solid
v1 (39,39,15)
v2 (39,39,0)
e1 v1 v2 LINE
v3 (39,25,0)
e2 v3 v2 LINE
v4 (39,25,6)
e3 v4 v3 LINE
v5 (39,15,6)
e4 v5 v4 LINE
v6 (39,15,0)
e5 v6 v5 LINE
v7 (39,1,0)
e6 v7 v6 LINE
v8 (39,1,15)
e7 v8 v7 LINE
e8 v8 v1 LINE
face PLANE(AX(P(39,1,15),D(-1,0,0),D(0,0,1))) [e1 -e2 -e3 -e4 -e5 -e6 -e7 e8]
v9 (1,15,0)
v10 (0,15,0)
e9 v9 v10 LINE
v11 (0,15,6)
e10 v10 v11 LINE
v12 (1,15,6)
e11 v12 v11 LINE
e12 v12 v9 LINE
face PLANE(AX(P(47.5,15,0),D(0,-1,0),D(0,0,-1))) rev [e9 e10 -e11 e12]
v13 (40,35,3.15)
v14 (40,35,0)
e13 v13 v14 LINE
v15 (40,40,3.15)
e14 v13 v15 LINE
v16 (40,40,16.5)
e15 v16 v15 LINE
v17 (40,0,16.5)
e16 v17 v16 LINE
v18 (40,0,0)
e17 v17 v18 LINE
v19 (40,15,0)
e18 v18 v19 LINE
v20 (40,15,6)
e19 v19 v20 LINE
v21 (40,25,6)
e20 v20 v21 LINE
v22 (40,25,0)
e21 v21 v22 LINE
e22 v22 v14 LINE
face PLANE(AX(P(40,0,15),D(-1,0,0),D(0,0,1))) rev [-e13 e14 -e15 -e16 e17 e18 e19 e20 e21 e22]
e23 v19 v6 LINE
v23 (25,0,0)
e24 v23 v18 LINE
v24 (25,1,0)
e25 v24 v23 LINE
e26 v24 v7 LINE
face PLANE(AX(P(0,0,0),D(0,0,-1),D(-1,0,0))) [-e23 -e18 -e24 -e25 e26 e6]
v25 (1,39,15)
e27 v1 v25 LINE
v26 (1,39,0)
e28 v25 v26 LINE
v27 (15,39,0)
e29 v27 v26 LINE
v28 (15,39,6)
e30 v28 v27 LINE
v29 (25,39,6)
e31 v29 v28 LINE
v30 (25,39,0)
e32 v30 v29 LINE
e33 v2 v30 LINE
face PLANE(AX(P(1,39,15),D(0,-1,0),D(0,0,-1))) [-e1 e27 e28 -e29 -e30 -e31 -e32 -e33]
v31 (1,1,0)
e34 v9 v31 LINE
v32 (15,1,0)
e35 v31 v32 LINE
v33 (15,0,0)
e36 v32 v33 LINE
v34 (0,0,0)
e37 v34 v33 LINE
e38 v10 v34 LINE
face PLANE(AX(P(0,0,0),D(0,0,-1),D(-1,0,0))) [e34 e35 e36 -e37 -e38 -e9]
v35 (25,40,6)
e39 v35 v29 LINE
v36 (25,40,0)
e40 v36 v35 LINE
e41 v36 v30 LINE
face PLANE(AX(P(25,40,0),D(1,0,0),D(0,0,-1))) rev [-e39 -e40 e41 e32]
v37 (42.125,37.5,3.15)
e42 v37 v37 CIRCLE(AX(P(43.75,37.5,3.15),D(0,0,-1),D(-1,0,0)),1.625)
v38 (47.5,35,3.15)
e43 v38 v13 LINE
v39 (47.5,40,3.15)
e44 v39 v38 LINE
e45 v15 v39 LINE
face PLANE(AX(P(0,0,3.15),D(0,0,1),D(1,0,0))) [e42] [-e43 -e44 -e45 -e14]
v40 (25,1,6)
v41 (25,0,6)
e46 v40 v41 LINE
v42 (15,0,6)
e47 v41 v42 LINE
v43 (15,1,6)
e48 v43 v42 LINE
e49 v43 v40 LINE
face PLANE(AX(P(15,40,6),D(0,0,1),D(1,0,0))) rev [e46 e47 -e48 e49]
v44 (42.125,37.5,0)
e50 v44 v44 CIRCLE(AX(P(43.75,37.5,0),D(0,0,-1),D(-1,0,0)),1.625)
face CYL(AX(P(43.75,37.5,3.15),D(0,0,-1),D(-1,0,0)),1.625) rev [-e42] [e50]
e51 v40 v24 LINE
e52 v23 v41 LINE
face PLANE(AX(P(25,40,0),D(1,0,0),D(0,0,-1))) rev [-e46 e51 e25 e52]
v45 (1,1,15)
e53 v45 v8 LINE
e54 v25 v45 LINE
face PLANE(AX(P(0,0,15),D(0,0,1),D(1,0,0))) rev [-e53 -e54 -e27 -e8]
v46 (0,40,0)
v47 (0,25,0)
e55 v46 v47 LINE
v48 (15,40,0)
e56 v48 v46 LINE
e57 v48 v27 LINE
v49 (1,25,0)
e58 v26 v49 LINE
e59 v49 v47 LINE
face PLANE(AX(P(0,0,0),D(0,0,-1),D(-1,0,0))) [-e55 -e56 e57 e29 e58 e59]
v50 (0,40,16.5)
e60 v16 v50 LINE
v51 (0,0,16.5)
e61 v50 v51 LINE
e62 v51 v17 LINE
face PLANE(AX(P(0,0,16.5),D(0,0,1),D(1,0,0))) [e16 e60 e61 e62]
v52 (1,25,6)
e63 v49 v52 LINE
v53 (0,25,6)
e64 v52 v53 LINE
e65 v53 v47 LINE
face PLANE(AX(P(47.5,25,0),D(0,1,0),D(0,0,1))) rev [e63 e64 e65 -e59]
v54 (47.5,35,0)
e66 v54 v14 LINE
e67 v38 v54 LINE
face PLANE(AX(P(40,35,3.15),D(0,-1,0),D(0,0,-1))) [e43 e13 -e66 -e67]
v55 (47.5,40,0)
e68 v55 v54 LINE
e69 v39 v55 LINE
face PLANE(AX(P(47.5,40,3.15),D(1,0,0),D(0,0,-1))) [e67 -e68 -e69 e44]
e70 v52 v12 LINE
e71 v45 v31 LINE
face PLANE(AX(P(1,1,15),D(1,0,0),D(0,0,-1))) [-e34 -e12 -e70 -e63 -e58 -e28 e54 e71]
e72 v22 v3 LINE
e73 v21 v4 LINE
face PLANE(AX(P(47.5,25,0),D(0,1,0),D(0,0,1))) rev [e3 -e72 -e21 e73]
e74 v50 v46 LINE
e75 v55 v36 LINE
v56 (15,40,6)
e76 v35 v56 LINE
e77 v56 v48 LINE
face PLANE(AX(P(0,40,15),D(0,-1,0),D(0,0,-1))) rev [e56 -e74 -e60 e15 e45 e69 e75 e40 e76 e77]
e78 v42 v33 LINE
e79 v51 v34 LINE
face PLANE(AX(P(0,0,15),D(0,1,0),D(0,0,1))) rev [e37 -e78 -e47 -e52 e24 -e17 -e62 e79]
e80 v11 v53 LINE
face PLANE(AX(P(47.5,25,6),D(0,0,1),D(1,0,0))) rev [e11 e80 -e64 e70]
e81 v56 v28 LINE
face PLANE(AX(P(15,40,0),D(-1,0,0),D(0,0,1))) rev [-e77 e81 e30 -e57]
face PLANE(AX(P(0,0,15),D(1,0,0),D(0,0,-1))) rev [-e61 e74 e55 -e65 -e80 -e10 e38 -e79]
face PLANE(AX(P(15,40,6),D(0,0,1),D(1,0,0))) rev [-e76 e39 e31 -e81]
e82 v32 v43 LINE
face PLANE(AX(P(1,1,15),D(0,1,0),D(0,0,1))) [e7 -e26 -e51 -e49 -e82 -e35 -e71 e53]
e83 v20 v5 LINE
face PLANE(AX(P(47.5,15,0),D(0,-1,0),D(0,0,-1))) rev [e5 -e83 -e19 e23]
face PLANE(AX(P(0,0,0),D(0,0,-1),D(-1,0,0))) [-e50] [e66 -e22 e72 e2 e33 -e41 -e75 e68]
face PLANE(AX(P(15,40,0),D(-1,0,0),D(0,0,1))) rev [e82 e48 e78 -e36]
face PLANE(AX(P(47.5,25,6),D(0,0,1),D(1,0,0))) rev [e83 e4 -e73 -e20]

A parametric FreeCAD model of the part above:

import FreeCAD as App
import Part
import Sketcher
from FreeCAD import Vector


def add_polygon(sketch, points):
    """Adds a closed chain of lines whose ends are joined by coincident constraints."""
    first, n = sketch.GeometryCount, len(points)
    for a, b in zip(points, points[1:] + points[:1]):
        sketch.addGeometry(Part.LineSegment(App.Vector(*a, 0), App.Vector(*b, 0)), False)
    for i in range(n):
        sketch.addConstraint(Sketcher.Constraint("Coincident", first + i, 2, first + (i + 1) % n, 1))

doc = App.newDocument("Part")
body = doc.addObject("PartDesign::Body", "Body")

# Sketch on XY plane
sketch1 = doc.addObject("Sketcher::SketchObject", "Sketch")
body.addObject(sketch1)
sketch1.AttachmentSupport = (doc.XY_Plane, [""])
sketch1.MapMode = "FlatFace"
add_polygon(sketch1, [(0, 40), (0, 0), (40, 0), (40, 40)])  # lines 0-3
add_polygon(sketch1, [(39, 1), (1, 1), (1, 39), (39, 39)])  # lines 4-7
sketch1.addConstraint([
    Sketcher.Constraint("Vertical", 0),
    Sketcher.Constraint("Horizontal", 1),
    Sketcher.Constraint("Vertical", 2),
    Sketcher.Constraint("Horizontal", 3),
    Sketcher.Constraint("Horizontal", 4),
    Sketcher.Constraint("Vertical", 5),
    Sketcher.Constraint("Horizontal", 6),
    Sketcher.Constraint("Vertical", 7),
    Sketcher.Constraint("Coincident", 0, 2, -1, 1),
    Sketcher.Constraint("Equal", 3, 0),
    Sketcher.Constraint("Equal", 6, 5),
    Sketcher.Constraint("DistanceX", 1, 1, 1, 2, 40.0),
    Sketcher.Constraint("DistanceX", 4, 2, 4, 1, 38.0),
    Sketcher.Constraint("DistanceX", -1, 1, 4, 2, 1.0),
    Sketcher.Constraint("DistanceY", -1, 1, 4, 2, 1.0),
])
pad1 = doc.addObject("PartDesign::Pad", "Pad")
body.addObject(pad1)
pad1.Profile = sketch1
pad1.Length = 15

# Sketch on XY plane
sketch2 = doc.addObject("Sketcher::SketchObject", "Sketch001")
body.addObject(sketch2)
sketch2.AttachmentSupport = (doc.XY_Plane, [""])
sketch2.MapMode = "FlatFace"
sketch2.AttachmentOffset = App.Placement(Vector(0, 0, 15), App.Rotation())
add_polygon(sketch2, [(0, 40), (0, 0), (40, 0), (40, 40)])  # lines 0-3
sketch2.addConstraint([
    Sketcher.Constraint("Vertical", 0),
    Sketcher.Constraint("Horizontal", 1),
    Sketcher.Constraint("Vertical", 2),
    Sketcher.Constraint("Horizontal", 3),
    Sketcher.Constraint("Coincident", 0, 2, -1, 1),
    Sketcher.Constraint("Equal", 3, 0),
    Sketcher.Constraint("DistanceX", 1, 1, 1, 2, 40.0),
])
pad2 = doc.addObject("PartDesign::Pad", "Pad001")
body.addObject(pad2)
pad2.Profile = sketch2
pad2.Length = 1.5

# Sketch on XY plane
sketch3 = doc.addObject("Sketcher::SketchObject", "Sketch002")
body.addObject(sketch3)
sketch3.AttachmentSupport = (doc.XY_Plane, [""])
sketch3.MapMode = "FlatFace"
add_polygon(sketch3, [(47.5, 40), (47.5, 35), (40, 35), (40, 40)])  # lines 0-3
sketch3.addGeometry(Part.Circle(Vector(43.75, 37.5, 0), Vector(0, 0, 1), 1.625), False)  # 4
sketch3.addConstraint([
    Sketcher.Constraint("Vertical", 0),
    Sketcher.Constraint("Horizontal", 1),
    Sketcher.Constraint("Vertical", 2),
    Sketcher.Constraint("Horizontal", 3),
    Sketcher.Constraint("Diameter", 4, 3.25),
    Sketcher.Constraint("DistanceY", 0, 2, 0, 1, 5.0),
    Sketcher.Constraint("DistanceX", 1, 2, 1, 1, 7.5),
    Sketcher.Constraint("DistanceY", -1, 1, 0, 2, 35.0),
    Sketcher.Constraint("DistanceX", -1, 1, 1, 2, 40.0),
    Sketcher.Constraint("DistanceY", -1, 1, 4, 3, 37.5),
    Sketcher.Constraint("DistanceX", -1, 1, 4, 3, 43.75),
])
pad3 = doc.addObject("PartDesign::Pad", "Pad002")
body.addObject(pad3)
pad3.Profile = sketch3
pad3.Length = 3.15

# Sketch on YZ plane
sketch4 = doc.addObject("Sketcher::SketchObject", "Sketch003")
body.addObject(sketch4)
sketch4.AttachmentSupport = (doc.YZ_Plane, [""])
sketch4.MapMode = "FlatFace"
add_polygon(sketch4, [(25, 0), (15, 0), (15, 6), (25, 6)])  # lines 0-3
sketch4.addConstraint([
    Sketcher.Constraint("Horizontal", 0),
    Sketcher.Constraint("Vertical", 1),
    Sketcher.Constraint("Horizontal", 2),
    Sketcher.Constraint("Vertical", 3),
    Sketcher.Constraint("PointOnObject", 0, 2, -1),
    Sketcher.Constraint("DistanceX", 0, 2, 0, 1, 10.0),
    Sketcher.Constraint("DistanceY", 1, 1, 1, 2, 6.0),
    Sketcher.Constraint("DistanceX", -1, 1, 0, 2, 15.0),
])
pocket1 = doc.addObject("PartDesign::Pocket", "Pocket")
body.addObject(pocket1)
pocket1.Profile = sketch4
pocket1.Type = "ThroughAll"
pocket1.Midplane = True

# Sketch on XZ plane
sketch5 = doc.addObject("Sketcher::SketchObject", "Sketch004")
body.addObject(sketch5)
sketch5.AttachmentSupport = (doc.XZ_Plane, [""])
sketch5.MapMode = "FlatFace"
add_polygon(sketch5, [(15, 6), (15, 0), (25, 0), (25, 6)])  # lines 0-3
sketch5.addConstraint([
    Sketcher.Constraint("Vertical", 0),
    Sketcher.Constraint("Horizontal", 1),
    Sketcher.Constraint("Vertical", 2),
    Sketcher.Constraint("Horizontal", 3),
    Sketcher.Constraint("PointOnObject", 0, 2, -1),
    Sketcher.Constraint("DistanceX", 1, 1, 1, 2, 10.0),
    Sketcher.Constraint("DistanceY", 0, 2, 0, 1, 6.0),
    Sketcher.Constraint("DistanceX", -1, 1, 0, 2, 15.0),
])
pocket2 = doc.addObject("PartDesign::Pocket", "Pocket001")
body.addObject(pocket2)
pocket2.Profile = sketch5
pocket2.Type = "ThroughAll"
pocket2.Midplane = True

doc.recompute()
